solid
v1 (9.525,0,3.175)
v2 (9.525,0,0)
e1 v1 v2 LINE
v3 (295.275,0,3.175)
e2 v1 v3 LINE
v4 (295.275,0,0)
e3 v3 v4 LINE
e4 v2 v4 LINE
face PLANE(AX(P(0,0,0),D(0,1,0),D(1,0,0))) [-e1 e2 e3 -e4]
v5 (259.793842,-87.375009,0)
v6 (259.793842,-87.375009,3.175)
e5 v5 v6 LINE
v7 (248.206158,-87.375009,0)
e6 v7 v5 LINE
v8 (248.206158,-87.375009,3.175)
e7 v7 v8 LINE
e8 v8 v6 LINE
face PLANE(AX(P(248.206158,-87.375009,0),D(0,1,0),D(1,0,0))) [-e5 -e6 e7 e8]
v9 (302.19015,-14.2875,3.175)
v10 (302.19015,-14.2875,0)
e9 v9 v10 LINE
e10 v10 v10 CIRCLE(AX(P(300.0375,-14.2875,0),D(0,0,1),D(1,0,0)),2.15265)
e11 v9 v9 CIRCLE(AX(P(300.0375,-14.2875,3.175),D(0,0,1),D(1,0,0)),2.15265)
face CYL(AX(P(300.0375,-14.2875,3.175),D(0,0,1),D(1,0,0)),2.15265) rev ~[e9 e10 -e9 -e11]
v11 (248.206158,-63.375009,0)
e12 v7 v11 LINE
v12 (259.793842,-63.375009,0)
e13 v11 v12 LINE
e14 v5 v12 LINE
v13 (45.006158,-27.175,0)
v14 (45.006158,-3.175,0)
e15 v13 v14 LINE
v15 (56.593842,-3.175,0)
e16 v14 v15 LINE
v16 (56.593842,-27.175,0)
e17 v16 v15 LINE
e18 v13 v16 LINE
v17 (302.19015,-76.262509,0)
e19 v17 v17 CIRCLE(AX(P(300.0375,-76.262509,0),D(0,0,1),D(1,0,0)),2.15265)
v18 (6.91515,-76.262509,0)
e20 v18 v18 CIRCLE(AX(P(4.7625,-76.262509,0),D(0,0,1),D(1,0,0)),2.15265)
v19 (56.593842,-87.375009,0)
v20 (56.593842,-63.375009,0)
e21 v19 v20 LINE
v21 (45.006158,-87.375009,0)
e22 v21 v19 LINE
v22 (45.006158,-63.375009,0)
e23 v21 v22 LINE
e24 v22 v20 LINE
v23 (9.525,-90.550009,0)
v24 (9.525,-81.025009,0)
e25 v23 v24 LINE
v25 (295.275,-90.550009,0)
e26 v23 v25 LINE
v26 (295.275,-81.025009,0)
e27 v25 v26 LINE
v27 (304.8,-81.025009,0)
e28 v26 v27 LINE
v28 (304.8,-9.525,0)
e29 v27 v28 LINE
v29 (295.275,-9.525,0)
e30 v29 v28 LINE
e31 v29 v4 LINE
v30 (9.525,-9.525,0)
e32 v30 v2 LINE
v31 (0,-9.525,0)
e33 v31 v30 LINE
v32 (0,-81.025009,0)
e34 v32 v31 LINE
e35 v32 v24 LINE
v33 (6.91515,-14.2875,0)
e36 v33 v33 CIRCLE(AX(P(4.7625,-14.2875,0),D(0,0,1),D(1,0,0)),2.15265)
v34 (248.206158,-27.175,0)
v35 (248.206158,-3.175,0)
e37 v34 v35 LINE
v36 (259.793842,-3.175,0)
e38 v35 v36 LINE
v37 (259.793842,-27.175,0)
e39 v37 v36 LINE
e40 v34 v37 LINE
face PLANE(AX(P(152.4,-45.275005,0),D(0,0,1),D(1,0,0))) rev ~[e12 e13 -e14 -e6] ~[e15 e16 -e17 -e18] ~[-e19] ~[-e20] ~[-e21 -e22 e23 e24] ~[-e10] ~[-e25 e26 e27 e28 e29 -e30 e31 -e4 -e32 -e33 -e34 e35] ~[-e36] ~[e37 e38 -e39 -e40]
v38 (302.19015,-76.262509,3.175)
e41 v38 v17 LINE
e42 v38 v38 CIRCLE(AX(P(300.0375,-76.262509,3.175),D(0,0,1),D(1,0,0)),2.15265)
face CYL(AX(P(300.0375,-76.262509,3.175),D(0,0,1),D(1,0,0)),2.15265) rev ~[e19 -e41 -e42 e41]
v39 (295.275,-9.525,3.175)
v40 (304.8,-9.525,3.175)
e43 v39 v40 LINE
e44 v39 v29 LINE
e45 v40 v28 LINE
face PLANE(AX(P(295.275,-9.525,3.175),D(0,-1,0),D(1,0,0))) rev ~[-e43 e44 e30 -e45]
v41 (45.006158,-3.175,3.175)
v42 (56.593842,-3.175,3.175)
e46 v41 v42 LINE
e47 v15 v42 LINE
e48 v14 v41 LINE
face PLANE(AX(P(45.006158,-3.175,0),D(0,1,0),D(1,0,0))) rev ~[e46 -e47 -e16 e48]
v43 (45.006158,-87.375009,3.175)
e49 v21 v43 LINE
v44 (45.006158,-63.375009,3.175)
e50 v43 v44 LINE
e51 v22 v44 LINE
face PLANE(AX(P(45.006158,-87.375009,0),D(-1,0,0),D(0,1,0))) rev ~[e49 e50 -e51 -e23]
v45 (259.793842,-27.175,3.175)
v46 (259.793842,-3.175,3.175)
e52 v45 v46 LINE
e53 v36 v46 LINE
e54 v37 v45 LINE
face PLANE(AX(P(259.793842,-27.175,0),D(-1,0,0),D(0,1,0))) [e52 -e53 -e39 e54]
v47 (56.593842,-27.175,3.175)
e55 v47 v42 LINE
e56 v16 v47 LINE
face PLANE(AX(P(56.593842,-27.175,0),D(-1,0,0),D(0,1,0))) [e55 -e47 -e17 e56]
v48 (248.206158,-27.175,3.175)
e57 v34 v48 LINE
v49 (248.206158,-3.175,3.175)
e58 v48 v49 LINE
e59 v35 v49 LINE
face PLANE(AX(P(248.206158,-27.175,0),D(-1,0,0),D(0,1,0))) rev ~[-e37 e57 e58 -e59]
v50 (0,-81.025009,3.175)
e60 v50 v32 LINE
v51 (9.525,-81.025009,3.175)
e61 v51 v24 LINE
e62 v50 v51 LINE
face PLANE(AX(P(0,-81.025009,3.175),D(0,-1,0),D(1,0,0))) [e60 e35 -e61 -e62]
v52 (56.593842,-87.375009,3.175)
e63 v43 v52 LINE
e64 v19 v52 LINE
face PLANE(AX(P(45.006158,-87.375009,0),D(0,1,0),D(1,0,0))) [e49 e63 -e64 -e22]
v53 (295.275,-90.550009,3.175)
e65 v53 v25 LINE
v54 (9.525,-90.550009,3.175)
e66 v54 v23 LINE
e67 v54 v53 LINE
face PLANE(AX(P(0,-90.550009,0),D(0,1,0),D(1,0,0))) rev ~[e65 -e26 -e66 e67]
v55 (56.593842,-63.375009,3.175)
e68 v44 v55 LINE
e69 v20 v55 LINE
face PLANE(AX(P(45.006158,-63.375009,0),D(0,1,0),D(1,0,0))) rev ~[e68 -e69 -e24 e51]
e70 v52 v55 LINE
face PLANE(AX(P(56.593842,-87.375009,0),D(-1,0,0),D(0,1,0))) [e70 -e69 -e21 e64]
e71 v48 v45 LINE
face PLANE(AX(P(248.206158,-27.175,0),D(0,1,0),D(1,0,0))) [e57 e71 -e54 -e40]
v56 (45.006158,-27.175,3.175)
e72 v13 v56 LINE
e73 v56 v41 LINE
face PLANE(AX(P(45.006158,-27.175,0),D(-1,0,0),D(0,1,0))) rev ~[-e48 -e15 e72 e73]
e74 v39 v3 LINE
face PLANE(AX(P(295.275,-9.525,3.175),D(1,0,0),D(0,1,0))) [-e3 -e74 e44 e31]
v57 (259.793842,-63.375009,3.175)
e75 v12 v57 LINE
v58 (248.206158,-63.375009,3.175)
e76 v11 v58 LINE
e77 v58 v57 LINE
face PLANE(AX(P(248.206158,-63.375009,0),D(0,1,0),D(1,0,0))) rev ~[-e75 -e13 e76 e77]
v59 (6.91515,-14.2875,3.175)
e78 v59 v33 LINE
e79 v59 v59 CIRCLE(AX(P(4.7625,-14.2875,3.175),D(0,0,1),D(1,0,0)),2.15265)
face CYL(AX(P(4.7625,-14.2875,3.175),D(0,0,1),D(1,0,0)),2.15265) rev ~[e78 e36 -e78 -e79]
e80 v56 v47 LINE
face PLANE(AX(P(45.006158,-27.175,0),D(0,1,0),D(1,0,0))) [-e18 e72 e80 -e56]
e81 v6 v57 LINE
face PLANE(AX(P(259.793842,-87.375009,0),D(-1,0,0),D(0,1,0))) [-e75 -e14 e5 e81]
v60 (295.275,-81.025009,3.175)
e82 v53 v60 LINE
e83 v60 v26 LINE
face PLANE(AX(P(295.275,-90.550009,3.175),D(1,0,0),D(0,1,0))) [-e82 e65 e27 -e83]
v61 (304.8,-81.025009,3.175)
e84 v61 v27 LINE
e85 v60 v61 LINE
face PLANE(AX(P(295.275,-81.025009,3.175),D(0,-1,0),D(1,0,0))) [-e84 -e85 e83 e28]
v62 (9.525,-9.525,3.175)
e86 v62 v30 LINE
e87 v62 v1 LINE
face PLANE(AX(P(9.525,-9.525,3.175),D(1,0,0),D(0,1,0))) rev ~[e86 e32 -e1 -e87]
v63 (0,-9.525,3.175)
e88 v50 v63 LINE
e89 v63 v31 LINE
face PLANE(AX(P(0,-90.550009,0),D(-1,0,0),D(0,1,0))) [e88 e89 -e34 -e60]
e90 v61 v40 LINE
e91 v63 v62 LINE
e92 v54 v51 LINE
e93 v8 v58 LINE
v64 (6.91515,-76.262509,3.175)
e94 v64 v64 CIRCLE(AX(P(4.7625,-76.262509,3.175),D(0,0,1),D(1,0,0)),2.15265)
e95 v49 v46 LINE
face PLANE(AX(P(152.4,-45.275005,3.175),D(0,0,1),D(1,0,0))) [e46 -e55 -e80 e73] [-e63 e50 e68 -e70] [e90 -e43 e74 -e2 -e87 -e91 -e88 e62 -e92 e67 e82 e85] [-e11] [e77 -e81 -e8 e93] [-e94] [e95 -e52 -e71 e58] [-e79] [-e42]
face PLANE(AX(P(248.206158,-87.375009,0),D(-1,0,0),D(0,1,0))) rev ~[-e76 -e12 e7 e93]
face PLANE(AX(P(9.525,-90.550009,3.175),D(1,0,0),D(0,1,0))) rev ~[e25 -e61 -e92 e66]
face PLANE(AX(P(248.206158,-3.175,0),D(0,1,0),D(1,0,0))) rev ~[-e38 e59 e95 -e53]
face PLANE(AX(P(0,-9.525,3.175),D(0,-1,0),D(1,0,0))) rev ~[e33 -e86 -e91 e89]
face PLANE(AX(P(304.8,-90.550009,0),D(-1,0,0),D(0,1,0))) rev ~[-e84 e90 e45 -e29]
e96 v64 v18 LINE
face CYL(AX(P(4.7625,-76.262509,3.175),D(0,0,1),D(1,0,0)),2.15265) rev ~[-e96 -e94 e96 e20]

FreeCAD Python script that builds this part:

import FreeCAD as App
import Part
import Sketcher
Q = App.Units.Quantity

doc = App.newDocument("Part")
body = doc.addObject("PartDesign::Body", "Body")

sketch1 = body.newObject("Sketcher::SketchObject", "Sketch")
sketch1.AttachmentSupport = (doc.getObject("XY_Plane"), [""])
sketch1.MapMode = "FlatFace"
sketch1.addGeometry(Part.LineSegment(App.Vector(0, 0, 0), App.Vector(0, -91, 0)), False)
sketch1.addGeometry(Part.LineSegment(App.Vector(0, -91, 0), App.Vector(305, -91, 0)), False)
sketch1.addGeometry(Part.LineSegment(App.Vector(305, -91, 0), App.Vector(305, 0, 0)), False)
sketch1.addGeometry(Part.LineSegment(App.Vector(305, 0, 0), App.Vector(0, 0, 0)), False)
sketch1.addGeometry(Part.LineSegment(App.Vector(57, -87, 0), App.Vector(45, -87, 0)), False)
sketch1.addGeometry(Part.LineSegment(App.Vector(45, -87, 0), App.Vector(45, -63, 0)), False)
sketch1.addGeometry(Part.LineSegment(App.Vector(45, -63, 0), App.Vector(57, -63, 0)), False)
sketch1.addGeometry(Part.LineSegment(App.Vector(57, -63, 0), App.Vector(57, -87, 0)), False)
sketch1.addGeometry(Part.LineSegment(App.Vector(260, -87, 0), App.Vector(248, -87, 0)), False)
sketch1.addGeometry(Part.LineSegment(App.Vector(248, -87, 0), App.Vector(248, -63, 0)), False)
sketch1.addGeometry(Part.LineSegment(App.Vector(248, -63, 0), App.Vector(260, -63, 0)), False)
sketch1.addGeometry(Part.LineSegment(App.Vector(260, -63, 0), App.Vector(260, -87, 0)), False)
sketch1.addGeometry(Part.LineSegment(App.Vector(57, -27, 0), App.Vector(45, -27, 0)), False)
sketch1.addGeometry(Part.LineSegment(App.Vector(45, -27, 0), App.Vector(45, -3, 0)), False)
sketch1.addGeometry(Part.LineSegment(App.Vector(45, -3, 0), App.Vector(57, -3, 0)), False)
sketch1.addGeometry(Part.LineSegment(App.Vector(57, -3, 0), App.Vector(57, -27, 0)), False)
sketch1.addGeometry(Part.LineSegment(App.Vector(260, -27, 0), App.Vector(248, -27, 0)), False)
sketch1.addGeometry(Part.LineSegment(App.Vector(248, -27, 0), App.Vector(248, -3, 0)), False)
sketch1.addGeometry(Part.LineSegment(App.Vector(248, -3, 0), App.Vector(260, -3, 0)), False)
sketch1.addGeometry(Part.LineSegment(App.Vector(260, -3, 0), App.Vector(260, -27, 0)), False)
sketch1.addConstraint(Sketcher.Constraint("Coincident", 0, 2, 1, 1))
sketch1.addConstraint(Sketcher.Constraint("Coincident", 1, 2, 2, 1))
sketch1.addConstraint(Sketcher.Constraint("Coincident", 2, 2, 3, 1))
sketch1.addConstraint(Sketcher.Constraint("Coincident", 3, 2, 0, 1))
sketch1.addConstraint(Sketcher.Constraint("Coincident", 4, 2, 5, 1))
sketch1.addConstraint(Sketcher.Constraint("Coincident", 5, 2, 6, 1))
sketch1.addConstraint(Sketcher.Constraint("Coincident", 6, 2, 7, 1))
sketch1.addConstraint(Sketcher.Constraint("Coincident", 7, 2, 4, 1))
sketch1.addConstraint(Sketcher.Constraint("Coincident", 8, 2, 9, 1))
sketch1.addConstraint(Sketcher.Constraint("Coincident", 9, 2, 10, 1))
sketch1.addConstraint(Sketcher.Constraint("Coincident", 10, 2, 11, 1))
sketch1.addConstraint(Sketcher.Constraint("Coincident", 11, 2, 8, 1))
sketch1.addConstraint(Sketcher.Constraint("Coincident", 12, 2, 13, 1))
sketch1.addConstraint(Sketcher.Constraint("Coincident", 13, 2, 14, 1))
sketch1.addConstraint(Sketcher.Constraint("Coincident", 14, 2, 15, 1))
sketch1.addConstraint(Sketcher.Constraint("Coincident", 15, 2, 12, 1))
sketch1.addConstraint(Sketcher.Constraint("Coincident", 16, 2, 17, 1))
sketch1.addConstraint(Sketcher.Constraint("Coincident", 17, 2, 18, 1))
sketch1.addConstraint(Sketcher.Constraint("Coincident", 18, 2, 19, 1))
sketch1.addConstraint(Sketcher.Constraint("Coincident", 19, 2, 16, 1))
sketch1.addConstraint(Sketcher.Constraint("Vertical", 0))
sketch1.addConstraint(Sketcher.Constraint("Horizontal", 1))
sketch1.addConstraint(Sketcher.Constraint("Vertical", 2))
sketch1.addConstraint(Sketcher.Constraint("Horizontal", 3))
sketch1.addConstraint(Sketcher.Constraint("Horizontal", 4))
sketch1.addConstraint(Sketcher.Constraint("Vertical", 5))
sketch1.addConstraint(Sketcher.Constraint("Horizontal", 6))
sketch1.addConstraint(Sketcher.Constraint("Vertical", 7))
sketch1.addConstraint(Sketcher.Constraint("Horizontal", 8))
sketch1.addConstraint(Sketcher.Constraint("Vertical", 9))
sketch1.addConstraint(Sketcher.Constraint("Horizontal", 10))
sketch1.addConstraint(Sketcher.Constraint("Vertical", 11))
sketch1.addConstraint(Sketcher.Constraint("Horizontal", 12))
sketch1.addConstraint(Sketcher.Constraint("Vertical", 13))
sketch1.addConstraint(Sketcher.Constraint("Horizontal", 14))
sketch1.addConstraint(Sketcher.Constraint("Vertical", 15))
sketch1.addConstraint(Sketcher.Constraint("Horizontal", 16))
sketch1.addConstraint(Sketcher.Constraint("Vertical", 17))
sketch1.addConstraint(Sketcher.Constraint("Horizontal", 18))
sketch1.addConstraint(Sketcher.Constraint("Vertical", 19))
sketch1.addConstraint(Sketcher.Constraint("Coincident", 3, 2, -1, 1))
sketch1.addConstraint(Sketcher.Constraint("Horizontal", 7, 2, 8, 2))
sketch1.addConstraint(Sketcher.Constraint("Horizontal", 6, 2, 9, 2))
sketch1.addConstraint(Sketcher.Constraint("Horizontal", 15, 2, 16, 2))
sketch1.addConstraint(Sketcher.Constraint("Horizontal", 14, 2, 17, 2))
sketch1.addConstraint(Sketcher.Constraint("Vertical", 5, 2, 12, 2))
sketch1.addConstraint(Sketcher.Constraint("Vertical", 7, 2, 14, 2))
sketch1.addConstraint(Sketcher.Constraint("Vertical", 9, 2, 16, 2))
sketch1.addConstraint(Sketcher.Constraint("Vertical", 11, 2, 18, 2))
sketch1.addConstraint(Sketcher.Constraint("Equal", 6, 8))
sketch1.addConstraint(Sketcher.Constraint("Equal", 11, 13))
sketch1.addConstraint(Sketcher.Constraint("DistanceX", 1, 1, 1, 2, Q("12 in")))
sketch1.addConstraint(Sketcher.Constraint("DistanceX", 4, 2, 8, 2, Q("8 in")))
sketch1.addConstraint(Sketcher.Constraint("DistanceY", 13, 2, -1, 1, Q("0.125 in")))
sketch1.addConstraint(Sketcher.Constraint("DistanceY", 0, 2, 4, 2, Q("0.125 in")))
sketch1.addConstraint(Sketcher.Constraint("DistanceY", 5, 1, 5, 2, Q("24 mm")))
sketch1.addConstraint(Sketcher.Constraint("DistanceY", 0, 2, 0, 1, Q("90.550009 mm")))
sketch1.addConstraint(Sketcher.Constraint("DistanceX", 4, 2, 4, 1, Q("11.587683 mm")))
sketch1.addConstraint(Sketcher.Constraint("DistanceX", -1, 1, 4, 2, Q("45.006158 mm")))
pad1 = body.newObject("PartDesign::Pad", "Pad")
pad1.Profile = sketch1
pad1.Length = Q("0.125 in")

sketch2 = body.newObject("Sketcher::SketchObject", "Sketch001")
sketch2.AttachmentSupport = (doc.getObject("XY_Plane"), [""])
sketch2.MapMode = "FlatFace"
sketch2.AttachmentOffset = App.Placement(App.Vector(0, 0, 0.125 * 25.4), App.Rotation())
sketch2.addGeometry(Part.Circle(App.Vector(4.8, -14.3, 0), App.Vector(0, 0, 1), 2.2), False)
sketch2.addGeometry(Part.Circle(App.Vector(4.8, -76.3, 0), App.Vector(0, 0, 1), 2.2), False)
sketch2.addGeometry(Part.Circle(App.Vector(300, -76.3, 0), App.Vector(0, 0, 1), 2.2), False)
sketch2.addGeometry(Part.Circle(App.Vector(300, -14.3, 0), App.Vector(0, 0, 1), 2.2), False)
sketch2.addConstraint(Sketcher.Constraint("Equal", 0, 1))
sketch2.addConstraint(Sketcher.Constraint("Equal", 1, 2))
sketch2.addConstraint(Sketcher.Constraint("Equal", 2, 3))
sketch2.addConstraint(Sketcher.Constraint("Horizontal", 1, 3, 2, 3))
sketch2.addConstraint(Sketcher.Constraint("Horizontal", 0, 3, 3, 3))
sketch2.addConstraint(Sketcher.Constraint("Vertical", 0, 3, 1, 3))
sketch2.addConstraint(Sketcher.Constraint("Vertical", 2, 3, 3, 3))
sketch2.addConstraint(Sketcher.Constraint("Diameter", 0, Q("0.1695 in")))
sketch2.addConstraint(Sketcher.Constraint("DistanceX", -1, 1, 0, 3, Q("0.1875 in")))
sketch2.addConstraint(Sketcher.Constraint("DistanceY", 0, 3, -1, 1, Q("0.5625 in")))
sketch2.addConstraint(Sketcher.Constraint("DistanceX", -1, 1, 2, 3, Q("11.8125 in")))
sketch2.addConstraint(Sketcher.Constraint("DistanceY", 1, 3, -1, 1, Q("76.262509 mm")))
pocket1 = body.newObject("PartDesign::Pocket", "Pocket")
pocket1.Profile = sketch2
pocket1.Type = "ThroughAll"

sketch3 = body.newObject("Sketcher::SketchObject", "Sketch002")
sketch3.AttachmentSupport = (doc.getObject("XY_Plane"), [""])
sketch3.MapMode = "FlatFace"
sketch3.AttachmentOffset = App.Placement(App.Vector(0, 0, 0.125 * 25.4), App.Rotation())
sketch3.addGeometry(Part.LineSegment(App.Vector(295, 0, 0), App.Vector(295, -10, 0)), False)
sketch3.addGeometry(Part.LineSegment(App.Vector(295, -10, 0), App.Vector(305, -10, 0)), False)
sketch3.addGeometry(Part.LineSegment(App.Vector(305, -10, 0), App.Vector(305, 0, 0)), False)
sketch3.addGeometry(Part.LineSegment(App.Vector(305, 0, 0), App.Vector(295, 0, 0)), False)
sketch3.addGeometry(Part.LineSegment(App.Vector(295, -81, 0), App.Vector(295, -91, 0)), False)
sketch3.addGeometry(Part.LineSegment(App.Vector(295, -91, 0), App.Vector(305, -91, 0)), False)
sketch3.addGeometry(Part.LineSegment(App.Vector(305, -91, 0), App.Vector(305, -81, 0)), False)
sketch3.addGeometry(Part.LineSegment(App.Vector(305, -81, 0), App.Vector(295, -81, 0)), False)
sketch3.addGeometry(Part.LineSegment(App.Vector(0, -81, 0), App.Vector(0, -91, 0)), False)
sketch3.addGeometry(Part.LineSegment(App.Vector(0, -91, 0), App.Vector(10, -91, 0)), False)
sketch3.addGeometry(Part.LineSegment(App.Vector(10, -91, 0), App.Vector(10, -81, 0)), False)
sketch3.addGeometry(Part.LineSegment(App.Vector(10, -81, 0), App.Vector(0, -81, 0)), False)
sketch3.addGeometry(Part.LineSegment(App.Vector(0, 0, 0), App.Vector(0, -10, 0)), False)
sketch3.addGeometry(Part.LineSegment(App.Vector(0, -10, 0), App.Vector(10, -10, 0)), False)
sketch3.addGeometry(Part.LineSegment(App.Vector(10, -10, 0), App.Vector(10, 0, 0)), False)
sketch3.addGeometry(Part.LineSegment(App.Vector(10, 0, 0), App.Vector(0, 0, 0)), False)
sketch3.addConstraint(Sketcher.Constraint("Coincident", 0, 2, 1, 1))
sketch3.addConstraint(Sketcher.Constraint("Coincident", 1, 2, 2, 1))
sketch3.addConstraint(Sketcher.Constraint("Coincident", 2, 2, 3, 1))
sketch3.addConstraint(Sketcher.Constraint("Coincident", 3, 2, 0, 1))
sketch3.addConstraint(Sketcher.Constraint("Coincident", 4, 2, 5, 1))
sketch3.addConstraint(Sketcher.Constraint("Coincident", 5, 2, 6, 1))
sketch3.addConstraint(Sketcher.Constraint("Coincident", 6, 2, 7, 1))
sketch3.addConstraint(Sketcher.Constraint("Coincident", 7, 2, 4, 1))
sketch3.addConstraint(Sketcher.Constraint("Coincident", 8, 2, 9, 1))
sketch3.addConstraint(Sketcher.Constraint("Coincident", 9, 2, 10, 1))
sketch3.addConstraint(Sketcher.Constraint("Coincident", 10, 2, 11, 1))
sketch3.addConstraint(Sketcher.Constraint("Coincident", 11, 2, 8, 1))
sketch3.addConstraint(Sketcher.Constraint("Coincident", 12, 2, 13, 1))
sketch3.addConstraint(Sketcher.Constraint("Coincident", 13, 2, 14, 1))
sketch3.addConstraint(Sketcher.Constraint("Coincident", 14, 2, 15, 1))
sketch3.addConstraint(Sketcher.Constraint("Coincident", 15, 2, 12, 1))
sketch3.addConstraint(Sketcher.Constraint("Vertical", 0))
sketch3.addConstraint(Sketcher.Constraint("Horizontal", 1))
sketch3.addConstraint(Sketcher.Constraint("Vertical", 2))
sketch3.addConstraint(Sketcher.Constraint("Horizontal", 3))
sketch3.addConstraint(Sketcher.Constraint("Vertical", 4))
sketch3.addConstraint(Sketcher.Constraint("Horizontal", 5))
sketch3.addConstraint(Sketcher.Constraint("Vertical", 6))
sketch3.addConstraint(Sketcher.Constraint("Horizontal", 7))
sketch3.addConstraint(Sketcher.Constraint("Vertical", 8))
sketch3.addConstraint(Sketcher.Constraint("Horizontal", 9))
sketch3.addConstraint(Sketcher.Constraint("Vertical", 10))
sketch3.addConstraint(Sketcher.Constraint("Horizontal", 11))
sketch3.addConstraint(Sketcher.Constraint("Vertical", 12))
sketch3.addConstraint(Sketcher.Constraint("Horizontal", 13))
sketch3.addConstraint(Sketcher.Constraint("Vertical", 14))
sketch3.addConstraint(Sketcher.Constraint("Horizontal", 15))
sketch3.addConstraint(Sketcher.Constraint("Coincident", 15, 2, -1, 1))
sketch3.addConstraint(Sketcher.Constraint("PointOnObject", 2, 2, -1))
sketch3.addConstraint(Sketcher.Constraint("PointOnObject", 8, 2, -2))
sketch3.addConstraint(Sketcher.Constraint("Horizontal", 5, 2, 8, 2))
sketch3.addConstraint(Sketcher.Constraint("Horizontal", 7, 2, 10, 2))
sketch3.addConstraint(Sketcher.Constraint("Horizontal", 1, 2, 12, 2))
sketch3.addConstraint(Sketcher.Constraint("Vertical", 3, 2, 4, 2))
sketch3.addConstraint(Sketcher.Constraint("Vertical", 2, 2, 5, 2))
sketch3.addConstraint(Sketcher.Constraint("Vertical", 10, 2, 13, 2))
sketch3.addConstraint(Sketcher.Constraint("Equal", 7, 9))
sketch3.addConstraint(Sketcher.Constraint("Equal", 15, 0))
sketch3.addConstraint(Sketcher.Constraint("Equal", 2, 4))
sketch3.addConstraint(Sketcher.Constraint("DistanceX", -1, 1, 1, 2, Q("12 in")))
sketch3.addConstraint(Sketcher.Constraint("DistanceX", 1, 1, 1, 2, Q("0.375 in")))
sketch3.addConstraint(Sketcher.Constraint("DistanceY", 4, 2, -1, 1, Q("90.550009 mm")))
pocket2 = body.newObject("PartDesign::Pocket", "Pocket001")
pocket2.Profile = sketch3
pocket2.Type = "ThroughAll"

doc.recompute()
